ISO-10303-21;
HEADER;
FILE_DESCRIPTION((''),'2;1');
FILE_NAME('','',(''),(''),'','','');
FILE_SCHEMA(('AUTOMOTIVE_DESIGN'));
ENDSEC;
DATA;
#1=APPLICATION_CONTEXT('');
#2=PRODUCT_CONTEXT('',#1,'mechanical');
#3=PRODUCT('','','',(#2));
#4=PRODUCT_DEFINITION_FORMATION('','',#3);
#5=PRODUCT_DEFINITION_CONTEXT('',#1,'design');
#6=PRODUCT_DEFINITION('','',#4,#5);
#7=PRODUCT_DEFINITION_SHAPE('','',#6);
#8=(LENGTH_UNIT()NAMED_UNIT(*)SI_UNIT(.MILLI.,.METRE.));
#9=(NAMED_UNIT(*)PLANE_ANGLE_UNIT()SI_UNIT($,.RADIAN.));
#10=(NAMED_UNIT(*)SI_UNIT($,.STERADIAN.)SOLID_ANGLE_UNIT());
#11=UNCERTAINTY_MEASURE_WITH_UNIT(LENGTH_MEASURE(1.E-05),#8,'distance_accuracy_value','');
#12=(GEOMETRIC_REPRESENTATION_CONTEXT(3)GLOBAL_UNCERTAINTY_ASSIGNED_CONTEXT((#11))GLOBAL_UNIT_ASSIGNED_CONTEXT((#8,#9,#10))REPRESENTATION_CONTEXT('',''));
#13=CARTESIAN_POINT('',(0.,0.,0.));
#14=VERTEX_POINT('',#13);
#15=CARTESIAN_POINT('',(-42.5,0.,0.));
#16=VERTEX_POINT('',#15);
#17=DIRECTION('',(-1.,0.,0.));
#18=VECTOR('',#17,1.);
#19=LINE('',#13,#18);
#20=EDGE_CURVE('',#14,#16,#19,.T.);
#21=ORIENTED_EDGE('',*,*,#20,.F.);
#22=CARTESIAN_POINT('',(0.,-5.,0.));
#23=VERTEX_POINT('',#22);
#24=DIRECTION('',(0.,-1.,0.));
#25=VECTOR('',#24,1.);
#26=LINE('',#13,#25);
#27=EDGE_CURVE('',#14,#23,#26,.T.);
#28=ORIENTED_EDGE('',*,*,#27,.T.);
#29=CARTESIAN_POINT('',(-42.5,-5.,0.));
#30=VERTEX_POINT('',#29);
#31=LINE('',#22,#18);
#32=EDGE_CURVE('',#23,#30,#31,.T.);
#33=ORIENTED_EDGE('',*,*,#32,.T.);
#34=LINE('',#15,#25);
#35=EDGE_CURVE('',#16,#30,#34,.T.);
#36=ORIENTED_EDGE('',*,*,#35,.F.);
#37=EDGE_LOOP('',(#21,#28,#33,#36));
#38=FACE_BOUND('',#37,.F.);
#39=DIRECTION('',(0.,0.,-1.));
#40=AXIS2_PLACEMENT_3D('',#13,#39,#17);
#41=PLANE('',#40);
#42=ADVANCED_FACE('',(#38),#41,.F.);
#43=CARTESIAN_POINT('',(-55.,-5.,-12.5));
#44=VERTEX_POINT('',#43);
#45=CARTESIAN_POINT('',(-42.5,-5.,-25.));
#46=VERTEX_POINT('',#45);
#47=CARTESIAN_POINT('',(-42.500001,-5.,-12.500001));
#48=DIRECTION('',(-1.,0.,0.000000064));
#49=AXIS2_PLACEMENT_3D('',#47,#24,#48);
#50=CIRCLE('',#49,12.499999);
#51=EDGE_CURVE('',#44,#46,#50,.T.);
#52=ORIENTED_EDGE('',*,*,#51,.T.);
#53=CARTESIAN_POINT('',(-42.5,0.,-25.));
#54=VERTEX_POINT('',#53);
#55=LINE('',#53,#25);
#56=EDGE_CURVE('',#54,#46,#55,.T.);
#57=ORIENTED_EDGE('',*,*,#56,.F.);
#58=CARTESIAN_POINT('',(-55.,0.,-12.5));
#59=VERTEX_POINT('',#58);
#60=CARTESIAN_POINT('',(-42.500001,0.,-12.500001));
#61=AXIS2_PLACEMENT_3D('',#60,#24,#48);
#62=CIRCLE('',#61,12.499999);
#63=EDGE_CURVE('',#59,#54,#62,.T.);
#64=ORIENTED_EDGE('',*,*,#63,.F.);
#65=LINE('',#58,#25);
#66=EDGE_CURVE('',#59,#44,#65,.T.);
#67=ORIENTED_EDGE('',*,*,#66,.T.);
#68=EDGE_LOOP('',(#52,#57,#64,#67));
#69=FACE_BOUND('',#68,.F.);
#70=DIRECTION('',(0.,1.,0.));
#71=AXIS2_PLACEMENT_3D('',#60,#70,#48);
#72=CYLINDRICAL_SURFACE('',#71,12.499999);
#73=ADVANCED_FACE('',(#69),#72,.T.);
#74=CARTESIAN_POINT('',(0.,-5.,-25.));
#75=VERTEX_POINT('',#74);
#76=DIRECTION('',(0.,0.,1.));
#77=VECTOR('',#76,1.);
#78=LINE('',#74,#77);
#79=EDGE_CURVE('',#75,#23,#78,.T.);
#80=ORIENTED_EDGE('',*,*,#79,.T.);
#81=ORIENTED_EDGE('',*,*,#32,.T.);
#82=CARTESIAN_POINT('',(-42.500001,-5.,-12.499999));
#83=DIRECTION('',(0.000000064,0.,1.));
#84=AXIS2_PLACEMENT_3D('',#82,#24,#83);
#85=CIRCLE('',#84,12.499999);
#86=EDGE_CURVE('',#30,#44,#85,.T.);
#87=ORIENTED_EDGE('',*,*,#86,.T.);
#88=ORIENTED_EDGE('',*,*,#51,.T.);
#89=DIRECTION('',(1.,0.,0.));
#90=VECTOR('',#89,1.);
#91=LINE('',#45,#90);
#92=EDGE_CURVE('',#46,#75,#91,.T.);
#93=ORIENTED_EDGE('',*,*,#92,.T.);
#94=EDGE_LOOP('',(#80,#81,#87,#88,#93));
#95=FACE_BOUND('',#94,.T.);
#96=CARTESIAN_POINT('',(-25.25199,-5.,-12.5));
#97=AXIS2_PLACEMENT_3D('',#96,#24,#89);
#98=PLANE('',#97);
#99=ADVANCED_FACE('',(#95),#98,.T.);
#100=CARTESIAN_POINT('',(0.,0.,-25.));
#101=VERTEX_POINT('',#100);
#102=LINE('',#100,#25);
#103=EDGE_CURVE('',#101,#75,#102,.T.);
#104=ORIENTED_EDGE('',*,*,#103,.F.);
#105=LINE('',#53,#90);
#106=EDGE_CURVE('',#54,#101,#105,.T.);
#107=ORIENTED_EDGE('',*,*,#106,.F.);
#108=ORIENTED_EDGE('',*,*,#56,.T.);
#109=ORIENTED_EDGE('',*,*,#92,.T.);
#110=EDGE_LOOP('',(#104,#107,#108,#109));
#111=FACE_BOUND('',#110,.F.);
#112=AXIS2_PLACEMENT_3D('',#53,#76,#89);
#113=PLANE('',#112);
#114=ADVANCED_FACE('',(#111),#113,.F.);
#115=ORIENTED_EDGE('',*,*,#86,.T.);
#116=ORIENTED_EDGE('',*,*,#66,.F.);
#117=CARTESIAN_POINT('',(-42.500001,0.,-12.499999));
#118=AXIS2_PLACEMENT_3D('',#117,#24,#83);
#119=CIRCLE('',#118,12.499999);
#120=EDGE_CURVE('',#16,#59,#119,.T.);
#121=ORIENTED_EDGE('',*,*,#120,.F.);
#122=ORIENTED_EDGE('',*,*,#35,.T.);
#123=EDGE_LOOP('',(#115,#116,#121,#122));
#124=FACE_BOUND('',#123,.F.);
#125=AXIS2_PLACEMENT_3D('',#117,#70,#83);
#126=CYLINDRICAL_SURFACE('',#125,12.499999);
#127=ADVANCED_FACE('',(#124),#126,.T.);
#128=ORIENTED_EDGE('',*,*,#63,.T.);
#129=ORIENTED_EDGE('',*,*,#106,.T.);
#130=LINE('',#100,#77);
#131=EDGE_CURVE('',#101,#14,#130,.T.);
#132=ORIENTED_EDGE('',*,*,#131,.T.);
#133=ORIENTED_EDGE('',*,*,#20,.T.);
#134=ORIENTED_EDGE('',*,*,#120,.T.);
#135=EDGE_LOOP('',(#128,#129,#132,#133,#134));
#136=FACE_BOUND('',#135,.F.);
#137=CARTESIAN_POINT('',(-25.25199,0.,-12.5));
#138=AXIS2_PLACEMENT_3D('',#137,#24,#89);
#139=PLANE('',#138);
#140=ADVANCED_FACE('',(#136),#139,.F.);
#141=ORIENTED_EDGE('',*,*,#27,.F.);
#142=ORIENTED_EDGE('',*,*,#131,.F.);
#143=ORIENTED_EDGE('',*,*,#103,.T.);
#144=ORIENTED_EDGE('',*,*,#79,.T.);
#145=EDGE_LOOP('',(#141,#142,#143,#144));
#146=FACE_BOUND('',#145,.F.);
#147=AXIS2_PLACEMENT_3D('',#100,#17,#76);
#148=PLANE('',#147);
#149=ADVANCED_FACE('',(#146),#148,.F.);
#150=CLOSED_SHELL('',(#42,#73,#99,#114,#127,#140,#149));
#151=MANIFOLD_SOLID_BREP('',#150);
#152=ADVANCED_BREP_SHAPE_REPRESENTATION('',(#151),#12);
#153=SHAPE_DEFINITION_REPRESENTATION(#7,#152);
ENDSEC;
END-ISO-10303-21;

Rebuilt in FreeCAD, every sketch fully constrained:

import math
import FreeCAD as App
import Part
import Sketcher

doc = App.newDocument("Part")
body = doc.addObject("PartDesign::Body", "Body")

# Sketch on XZ plane
sketch1 = doc.addObject("Sketcher::SketchObject", "Sketch")
body.addObject(sketch1)
sketch1.AttachmentSupport = (doc.XZ_Plane, [""])
sketch1.MapMode = "FlatFace"
sketch1.addGeometry([
    Part.LineSegment(App.Vector(0, 0, 0), App.Vector(-42, 0, 0)),  # 0
    Part.ArcOfCircle(Part.Circle(App.Vector(-43, -12, 0), App.Vector(0, 0, 1), 12), math.radians(90), math.radians(180)),  # 1
    Part.ArcOfCircle(Part.Circle(App.Vector(-43, -13, 0), App.Vector(0, 0, 1), 12), math.radians(180), math.radians(270)),  # 2
    Part.LineSegment(App.Vector(-42, -25, 0), App.Vector(0, -25, 0)),  # 3
    Part.LineSegment(App.Vector(0, -25, 0), App.Vector(0, 0, 0)),  # 4
], False)
sketch1.addConstraint([
    Sketcher.Constraint("Tangent", 0, 2, 1, 1),
    Sketcher.Constraint("Tangent", 1, 2, 2, 1),
    Sketcher.Constraint("Tangent", 2, 2, 3, 1),
    Sketcher.Constraint("Coincident", 3, 2, 4, 1),
    Sketcher.Constraint("Coincident", 4, 2, 0, 1),
    Sketcher.Constraint("Horizontal", 0),
    Sketcher.Constraint("Horizontal", 3),
    Sketcher.Constraint("Vertical", 4),
    Sketcher.Constraint("Coincident", 4, 2, -1, 1),
    Sketcher.Constraint("Equal", 1, 2),
    Sketcher.Constraint("Horizontal", 2, 3, 1, 2),
    Sketcher.Constraint("Radius", 1, 12.499999),
    Sketcher.Constraint("DistanceX", 0, 2, 0, 1, 42.5),
])
pad1 = doc.addObject("PartDesign::Pad", "Pad")
body.addObject(pad1)
pad1.Profile = sketch1
pad1.Length = 5

doc.recompute()
